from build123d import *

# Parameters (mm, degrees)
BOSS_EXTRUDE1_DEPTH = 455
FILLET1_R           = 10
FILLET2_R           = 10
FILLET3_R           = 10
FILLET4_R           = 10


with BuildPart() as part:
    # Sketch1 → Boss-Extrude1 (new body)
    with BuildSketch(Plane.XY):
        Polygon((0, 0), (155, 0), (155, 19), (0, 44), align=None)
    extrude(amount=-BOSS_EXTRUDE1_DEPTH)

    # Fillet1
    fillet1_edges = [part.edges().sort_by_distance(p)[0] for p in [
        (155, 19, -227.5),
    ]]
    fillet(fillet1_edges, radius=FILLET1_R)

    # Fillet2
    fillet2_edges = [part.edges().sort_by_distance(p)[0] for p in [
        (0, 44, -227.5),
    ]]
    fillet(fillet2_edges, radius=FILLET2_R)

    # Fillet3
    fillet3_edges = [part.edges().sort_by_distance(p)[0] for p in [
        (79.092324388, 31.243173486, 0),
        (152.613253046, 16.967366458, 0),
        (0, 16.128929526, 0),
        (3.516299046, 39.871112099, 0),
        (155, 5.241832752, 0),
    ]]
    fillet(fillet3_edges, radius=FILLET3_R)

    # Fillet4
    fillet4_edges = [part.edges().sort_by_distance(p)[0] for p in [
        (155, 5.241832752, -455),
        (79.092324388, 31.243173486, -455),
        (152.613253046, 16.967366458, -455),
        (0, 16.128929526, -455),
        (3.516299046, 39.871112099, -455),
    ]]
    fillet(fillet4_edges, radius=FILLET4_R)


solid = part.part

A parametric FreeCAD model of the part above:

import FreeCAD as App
import Part
import Sketcher

V = App.Vector


def edges_at(feature, points):
    """Names of the edges that pass closest to the given points."""
    edges = feature.Shape.Edges
    near = lambda p: min(range(len(edges)), key=lambda i: edges[i].distToShape(Part.Vertex(*p))[0])
    return sorted({f"Edge{near(p) + 1}" for p in points})

doc = App.newDocument("Part")
body = doc.addObject("PartDesign::Body", "Body")

sketch1 = body.newObject("Sketcher::SketchObject", "Sketch")
sketch1.AttachmentSupport = (doc.getObject("XY_Plane"), [""])
sketch1.MapMode = "FlatFace"
sketch1.addGeometry(Part.LineSegment(V(0, 0, 0), V(155, 0, 0)), False)
sketch1.addGeometry(Part.LineSegment(V(155, 0, 0), V(155, 19, 0)), False)
sketch1.addGeometry(Part.LineSegment(V(155, 19, 0), V(0, 44, 0)), False)
sketch1.addGeometry(Part.LineSegment(V(0, 44, 0), V(0, 0, 0)), False)
sketch1.addConstraint(Sketcher.Constraint("Coincident", 0, 2, 1, 1))
sketch1.addConstraint(Sketcher.Constraint("Coincident", 1, 2, 2, 1))
sketch1.addConstraint(Sketcher.Constraint("Coincident", 2, 2, 3, 1))
sketch1.addConstraint(Sketcher.Constraint("Coincident", 3, 2, 0, 1))
sketch1.addConstraint(Sketcher.Constraint("Horizontal", 0))
sketch1.addConstraint(Sketcher.Constraint("Vertical", 1))
sketch1.addConstraint(Sketcher.Constraint("Vertical", 3))
sketch1.addConstraint(Sketcher.Constraint("Coincident", 3, 2, -1, 1))
sketch1.addConstraint(Sketcher.Constraint("DistanceX", 0, 1, 0, 2, 155.0))
sketch1.addConstraint(Sketcher.Constraint("DistanceY", 1, 1, 1, 2, 19.0))
sketch1.addConstraint(Sketcher.Constraint("DistanceY", 3, 2, 3, 1, 44.0))
pad1 = body.newObject("PartDesign::Pad", "Pad")
pad1.Profile = sketch1
pad1.Length = 455
pad1.Reversed = True
doc.recompute()

fillet = body.newObject("PartDesign::Fillet", "Fillet")
fillet.Base = (pad1, edges_at(pad1, [(155, 19, -227.5)]))
fillet.Radius = 10
doc.recompute()

fillet2 = body.newObject("PartDesign::Fillet", "Fillet001")
fillet2.Base = (fillet, edges_at(fillet, [(0, 44, -227.5)]))
fillet2.Radius = 10
doc.recompute()

fillet3 = body.newObject("PartDesign::Fillet", "Fillet002")
fillet3.Base = (fillet2, edges_at(fillet2, [
    (79.092, 31.243, 0),
    (152.613, 16.967, 0),
    (0, 16.129, 0),
    (3.516, 39.871, 0),
    (155, 5.242, 0),
]))
fillet3.Radius = 10
doc.recompute()

fillet4 = body.newObject("PartDesign::Fillet", "Fillet003")
fillet4.Base = (fillet3, edges_at(fillet3, [
    (155, 5.242, -455),
    (79.092, 31.243, -455),
    (152.613, 16.967, -455),
    (0, 16.129, -455),
    (3.516, 39.871, -455),
]))
fillet4.Radius = 10

doc.recompute()
